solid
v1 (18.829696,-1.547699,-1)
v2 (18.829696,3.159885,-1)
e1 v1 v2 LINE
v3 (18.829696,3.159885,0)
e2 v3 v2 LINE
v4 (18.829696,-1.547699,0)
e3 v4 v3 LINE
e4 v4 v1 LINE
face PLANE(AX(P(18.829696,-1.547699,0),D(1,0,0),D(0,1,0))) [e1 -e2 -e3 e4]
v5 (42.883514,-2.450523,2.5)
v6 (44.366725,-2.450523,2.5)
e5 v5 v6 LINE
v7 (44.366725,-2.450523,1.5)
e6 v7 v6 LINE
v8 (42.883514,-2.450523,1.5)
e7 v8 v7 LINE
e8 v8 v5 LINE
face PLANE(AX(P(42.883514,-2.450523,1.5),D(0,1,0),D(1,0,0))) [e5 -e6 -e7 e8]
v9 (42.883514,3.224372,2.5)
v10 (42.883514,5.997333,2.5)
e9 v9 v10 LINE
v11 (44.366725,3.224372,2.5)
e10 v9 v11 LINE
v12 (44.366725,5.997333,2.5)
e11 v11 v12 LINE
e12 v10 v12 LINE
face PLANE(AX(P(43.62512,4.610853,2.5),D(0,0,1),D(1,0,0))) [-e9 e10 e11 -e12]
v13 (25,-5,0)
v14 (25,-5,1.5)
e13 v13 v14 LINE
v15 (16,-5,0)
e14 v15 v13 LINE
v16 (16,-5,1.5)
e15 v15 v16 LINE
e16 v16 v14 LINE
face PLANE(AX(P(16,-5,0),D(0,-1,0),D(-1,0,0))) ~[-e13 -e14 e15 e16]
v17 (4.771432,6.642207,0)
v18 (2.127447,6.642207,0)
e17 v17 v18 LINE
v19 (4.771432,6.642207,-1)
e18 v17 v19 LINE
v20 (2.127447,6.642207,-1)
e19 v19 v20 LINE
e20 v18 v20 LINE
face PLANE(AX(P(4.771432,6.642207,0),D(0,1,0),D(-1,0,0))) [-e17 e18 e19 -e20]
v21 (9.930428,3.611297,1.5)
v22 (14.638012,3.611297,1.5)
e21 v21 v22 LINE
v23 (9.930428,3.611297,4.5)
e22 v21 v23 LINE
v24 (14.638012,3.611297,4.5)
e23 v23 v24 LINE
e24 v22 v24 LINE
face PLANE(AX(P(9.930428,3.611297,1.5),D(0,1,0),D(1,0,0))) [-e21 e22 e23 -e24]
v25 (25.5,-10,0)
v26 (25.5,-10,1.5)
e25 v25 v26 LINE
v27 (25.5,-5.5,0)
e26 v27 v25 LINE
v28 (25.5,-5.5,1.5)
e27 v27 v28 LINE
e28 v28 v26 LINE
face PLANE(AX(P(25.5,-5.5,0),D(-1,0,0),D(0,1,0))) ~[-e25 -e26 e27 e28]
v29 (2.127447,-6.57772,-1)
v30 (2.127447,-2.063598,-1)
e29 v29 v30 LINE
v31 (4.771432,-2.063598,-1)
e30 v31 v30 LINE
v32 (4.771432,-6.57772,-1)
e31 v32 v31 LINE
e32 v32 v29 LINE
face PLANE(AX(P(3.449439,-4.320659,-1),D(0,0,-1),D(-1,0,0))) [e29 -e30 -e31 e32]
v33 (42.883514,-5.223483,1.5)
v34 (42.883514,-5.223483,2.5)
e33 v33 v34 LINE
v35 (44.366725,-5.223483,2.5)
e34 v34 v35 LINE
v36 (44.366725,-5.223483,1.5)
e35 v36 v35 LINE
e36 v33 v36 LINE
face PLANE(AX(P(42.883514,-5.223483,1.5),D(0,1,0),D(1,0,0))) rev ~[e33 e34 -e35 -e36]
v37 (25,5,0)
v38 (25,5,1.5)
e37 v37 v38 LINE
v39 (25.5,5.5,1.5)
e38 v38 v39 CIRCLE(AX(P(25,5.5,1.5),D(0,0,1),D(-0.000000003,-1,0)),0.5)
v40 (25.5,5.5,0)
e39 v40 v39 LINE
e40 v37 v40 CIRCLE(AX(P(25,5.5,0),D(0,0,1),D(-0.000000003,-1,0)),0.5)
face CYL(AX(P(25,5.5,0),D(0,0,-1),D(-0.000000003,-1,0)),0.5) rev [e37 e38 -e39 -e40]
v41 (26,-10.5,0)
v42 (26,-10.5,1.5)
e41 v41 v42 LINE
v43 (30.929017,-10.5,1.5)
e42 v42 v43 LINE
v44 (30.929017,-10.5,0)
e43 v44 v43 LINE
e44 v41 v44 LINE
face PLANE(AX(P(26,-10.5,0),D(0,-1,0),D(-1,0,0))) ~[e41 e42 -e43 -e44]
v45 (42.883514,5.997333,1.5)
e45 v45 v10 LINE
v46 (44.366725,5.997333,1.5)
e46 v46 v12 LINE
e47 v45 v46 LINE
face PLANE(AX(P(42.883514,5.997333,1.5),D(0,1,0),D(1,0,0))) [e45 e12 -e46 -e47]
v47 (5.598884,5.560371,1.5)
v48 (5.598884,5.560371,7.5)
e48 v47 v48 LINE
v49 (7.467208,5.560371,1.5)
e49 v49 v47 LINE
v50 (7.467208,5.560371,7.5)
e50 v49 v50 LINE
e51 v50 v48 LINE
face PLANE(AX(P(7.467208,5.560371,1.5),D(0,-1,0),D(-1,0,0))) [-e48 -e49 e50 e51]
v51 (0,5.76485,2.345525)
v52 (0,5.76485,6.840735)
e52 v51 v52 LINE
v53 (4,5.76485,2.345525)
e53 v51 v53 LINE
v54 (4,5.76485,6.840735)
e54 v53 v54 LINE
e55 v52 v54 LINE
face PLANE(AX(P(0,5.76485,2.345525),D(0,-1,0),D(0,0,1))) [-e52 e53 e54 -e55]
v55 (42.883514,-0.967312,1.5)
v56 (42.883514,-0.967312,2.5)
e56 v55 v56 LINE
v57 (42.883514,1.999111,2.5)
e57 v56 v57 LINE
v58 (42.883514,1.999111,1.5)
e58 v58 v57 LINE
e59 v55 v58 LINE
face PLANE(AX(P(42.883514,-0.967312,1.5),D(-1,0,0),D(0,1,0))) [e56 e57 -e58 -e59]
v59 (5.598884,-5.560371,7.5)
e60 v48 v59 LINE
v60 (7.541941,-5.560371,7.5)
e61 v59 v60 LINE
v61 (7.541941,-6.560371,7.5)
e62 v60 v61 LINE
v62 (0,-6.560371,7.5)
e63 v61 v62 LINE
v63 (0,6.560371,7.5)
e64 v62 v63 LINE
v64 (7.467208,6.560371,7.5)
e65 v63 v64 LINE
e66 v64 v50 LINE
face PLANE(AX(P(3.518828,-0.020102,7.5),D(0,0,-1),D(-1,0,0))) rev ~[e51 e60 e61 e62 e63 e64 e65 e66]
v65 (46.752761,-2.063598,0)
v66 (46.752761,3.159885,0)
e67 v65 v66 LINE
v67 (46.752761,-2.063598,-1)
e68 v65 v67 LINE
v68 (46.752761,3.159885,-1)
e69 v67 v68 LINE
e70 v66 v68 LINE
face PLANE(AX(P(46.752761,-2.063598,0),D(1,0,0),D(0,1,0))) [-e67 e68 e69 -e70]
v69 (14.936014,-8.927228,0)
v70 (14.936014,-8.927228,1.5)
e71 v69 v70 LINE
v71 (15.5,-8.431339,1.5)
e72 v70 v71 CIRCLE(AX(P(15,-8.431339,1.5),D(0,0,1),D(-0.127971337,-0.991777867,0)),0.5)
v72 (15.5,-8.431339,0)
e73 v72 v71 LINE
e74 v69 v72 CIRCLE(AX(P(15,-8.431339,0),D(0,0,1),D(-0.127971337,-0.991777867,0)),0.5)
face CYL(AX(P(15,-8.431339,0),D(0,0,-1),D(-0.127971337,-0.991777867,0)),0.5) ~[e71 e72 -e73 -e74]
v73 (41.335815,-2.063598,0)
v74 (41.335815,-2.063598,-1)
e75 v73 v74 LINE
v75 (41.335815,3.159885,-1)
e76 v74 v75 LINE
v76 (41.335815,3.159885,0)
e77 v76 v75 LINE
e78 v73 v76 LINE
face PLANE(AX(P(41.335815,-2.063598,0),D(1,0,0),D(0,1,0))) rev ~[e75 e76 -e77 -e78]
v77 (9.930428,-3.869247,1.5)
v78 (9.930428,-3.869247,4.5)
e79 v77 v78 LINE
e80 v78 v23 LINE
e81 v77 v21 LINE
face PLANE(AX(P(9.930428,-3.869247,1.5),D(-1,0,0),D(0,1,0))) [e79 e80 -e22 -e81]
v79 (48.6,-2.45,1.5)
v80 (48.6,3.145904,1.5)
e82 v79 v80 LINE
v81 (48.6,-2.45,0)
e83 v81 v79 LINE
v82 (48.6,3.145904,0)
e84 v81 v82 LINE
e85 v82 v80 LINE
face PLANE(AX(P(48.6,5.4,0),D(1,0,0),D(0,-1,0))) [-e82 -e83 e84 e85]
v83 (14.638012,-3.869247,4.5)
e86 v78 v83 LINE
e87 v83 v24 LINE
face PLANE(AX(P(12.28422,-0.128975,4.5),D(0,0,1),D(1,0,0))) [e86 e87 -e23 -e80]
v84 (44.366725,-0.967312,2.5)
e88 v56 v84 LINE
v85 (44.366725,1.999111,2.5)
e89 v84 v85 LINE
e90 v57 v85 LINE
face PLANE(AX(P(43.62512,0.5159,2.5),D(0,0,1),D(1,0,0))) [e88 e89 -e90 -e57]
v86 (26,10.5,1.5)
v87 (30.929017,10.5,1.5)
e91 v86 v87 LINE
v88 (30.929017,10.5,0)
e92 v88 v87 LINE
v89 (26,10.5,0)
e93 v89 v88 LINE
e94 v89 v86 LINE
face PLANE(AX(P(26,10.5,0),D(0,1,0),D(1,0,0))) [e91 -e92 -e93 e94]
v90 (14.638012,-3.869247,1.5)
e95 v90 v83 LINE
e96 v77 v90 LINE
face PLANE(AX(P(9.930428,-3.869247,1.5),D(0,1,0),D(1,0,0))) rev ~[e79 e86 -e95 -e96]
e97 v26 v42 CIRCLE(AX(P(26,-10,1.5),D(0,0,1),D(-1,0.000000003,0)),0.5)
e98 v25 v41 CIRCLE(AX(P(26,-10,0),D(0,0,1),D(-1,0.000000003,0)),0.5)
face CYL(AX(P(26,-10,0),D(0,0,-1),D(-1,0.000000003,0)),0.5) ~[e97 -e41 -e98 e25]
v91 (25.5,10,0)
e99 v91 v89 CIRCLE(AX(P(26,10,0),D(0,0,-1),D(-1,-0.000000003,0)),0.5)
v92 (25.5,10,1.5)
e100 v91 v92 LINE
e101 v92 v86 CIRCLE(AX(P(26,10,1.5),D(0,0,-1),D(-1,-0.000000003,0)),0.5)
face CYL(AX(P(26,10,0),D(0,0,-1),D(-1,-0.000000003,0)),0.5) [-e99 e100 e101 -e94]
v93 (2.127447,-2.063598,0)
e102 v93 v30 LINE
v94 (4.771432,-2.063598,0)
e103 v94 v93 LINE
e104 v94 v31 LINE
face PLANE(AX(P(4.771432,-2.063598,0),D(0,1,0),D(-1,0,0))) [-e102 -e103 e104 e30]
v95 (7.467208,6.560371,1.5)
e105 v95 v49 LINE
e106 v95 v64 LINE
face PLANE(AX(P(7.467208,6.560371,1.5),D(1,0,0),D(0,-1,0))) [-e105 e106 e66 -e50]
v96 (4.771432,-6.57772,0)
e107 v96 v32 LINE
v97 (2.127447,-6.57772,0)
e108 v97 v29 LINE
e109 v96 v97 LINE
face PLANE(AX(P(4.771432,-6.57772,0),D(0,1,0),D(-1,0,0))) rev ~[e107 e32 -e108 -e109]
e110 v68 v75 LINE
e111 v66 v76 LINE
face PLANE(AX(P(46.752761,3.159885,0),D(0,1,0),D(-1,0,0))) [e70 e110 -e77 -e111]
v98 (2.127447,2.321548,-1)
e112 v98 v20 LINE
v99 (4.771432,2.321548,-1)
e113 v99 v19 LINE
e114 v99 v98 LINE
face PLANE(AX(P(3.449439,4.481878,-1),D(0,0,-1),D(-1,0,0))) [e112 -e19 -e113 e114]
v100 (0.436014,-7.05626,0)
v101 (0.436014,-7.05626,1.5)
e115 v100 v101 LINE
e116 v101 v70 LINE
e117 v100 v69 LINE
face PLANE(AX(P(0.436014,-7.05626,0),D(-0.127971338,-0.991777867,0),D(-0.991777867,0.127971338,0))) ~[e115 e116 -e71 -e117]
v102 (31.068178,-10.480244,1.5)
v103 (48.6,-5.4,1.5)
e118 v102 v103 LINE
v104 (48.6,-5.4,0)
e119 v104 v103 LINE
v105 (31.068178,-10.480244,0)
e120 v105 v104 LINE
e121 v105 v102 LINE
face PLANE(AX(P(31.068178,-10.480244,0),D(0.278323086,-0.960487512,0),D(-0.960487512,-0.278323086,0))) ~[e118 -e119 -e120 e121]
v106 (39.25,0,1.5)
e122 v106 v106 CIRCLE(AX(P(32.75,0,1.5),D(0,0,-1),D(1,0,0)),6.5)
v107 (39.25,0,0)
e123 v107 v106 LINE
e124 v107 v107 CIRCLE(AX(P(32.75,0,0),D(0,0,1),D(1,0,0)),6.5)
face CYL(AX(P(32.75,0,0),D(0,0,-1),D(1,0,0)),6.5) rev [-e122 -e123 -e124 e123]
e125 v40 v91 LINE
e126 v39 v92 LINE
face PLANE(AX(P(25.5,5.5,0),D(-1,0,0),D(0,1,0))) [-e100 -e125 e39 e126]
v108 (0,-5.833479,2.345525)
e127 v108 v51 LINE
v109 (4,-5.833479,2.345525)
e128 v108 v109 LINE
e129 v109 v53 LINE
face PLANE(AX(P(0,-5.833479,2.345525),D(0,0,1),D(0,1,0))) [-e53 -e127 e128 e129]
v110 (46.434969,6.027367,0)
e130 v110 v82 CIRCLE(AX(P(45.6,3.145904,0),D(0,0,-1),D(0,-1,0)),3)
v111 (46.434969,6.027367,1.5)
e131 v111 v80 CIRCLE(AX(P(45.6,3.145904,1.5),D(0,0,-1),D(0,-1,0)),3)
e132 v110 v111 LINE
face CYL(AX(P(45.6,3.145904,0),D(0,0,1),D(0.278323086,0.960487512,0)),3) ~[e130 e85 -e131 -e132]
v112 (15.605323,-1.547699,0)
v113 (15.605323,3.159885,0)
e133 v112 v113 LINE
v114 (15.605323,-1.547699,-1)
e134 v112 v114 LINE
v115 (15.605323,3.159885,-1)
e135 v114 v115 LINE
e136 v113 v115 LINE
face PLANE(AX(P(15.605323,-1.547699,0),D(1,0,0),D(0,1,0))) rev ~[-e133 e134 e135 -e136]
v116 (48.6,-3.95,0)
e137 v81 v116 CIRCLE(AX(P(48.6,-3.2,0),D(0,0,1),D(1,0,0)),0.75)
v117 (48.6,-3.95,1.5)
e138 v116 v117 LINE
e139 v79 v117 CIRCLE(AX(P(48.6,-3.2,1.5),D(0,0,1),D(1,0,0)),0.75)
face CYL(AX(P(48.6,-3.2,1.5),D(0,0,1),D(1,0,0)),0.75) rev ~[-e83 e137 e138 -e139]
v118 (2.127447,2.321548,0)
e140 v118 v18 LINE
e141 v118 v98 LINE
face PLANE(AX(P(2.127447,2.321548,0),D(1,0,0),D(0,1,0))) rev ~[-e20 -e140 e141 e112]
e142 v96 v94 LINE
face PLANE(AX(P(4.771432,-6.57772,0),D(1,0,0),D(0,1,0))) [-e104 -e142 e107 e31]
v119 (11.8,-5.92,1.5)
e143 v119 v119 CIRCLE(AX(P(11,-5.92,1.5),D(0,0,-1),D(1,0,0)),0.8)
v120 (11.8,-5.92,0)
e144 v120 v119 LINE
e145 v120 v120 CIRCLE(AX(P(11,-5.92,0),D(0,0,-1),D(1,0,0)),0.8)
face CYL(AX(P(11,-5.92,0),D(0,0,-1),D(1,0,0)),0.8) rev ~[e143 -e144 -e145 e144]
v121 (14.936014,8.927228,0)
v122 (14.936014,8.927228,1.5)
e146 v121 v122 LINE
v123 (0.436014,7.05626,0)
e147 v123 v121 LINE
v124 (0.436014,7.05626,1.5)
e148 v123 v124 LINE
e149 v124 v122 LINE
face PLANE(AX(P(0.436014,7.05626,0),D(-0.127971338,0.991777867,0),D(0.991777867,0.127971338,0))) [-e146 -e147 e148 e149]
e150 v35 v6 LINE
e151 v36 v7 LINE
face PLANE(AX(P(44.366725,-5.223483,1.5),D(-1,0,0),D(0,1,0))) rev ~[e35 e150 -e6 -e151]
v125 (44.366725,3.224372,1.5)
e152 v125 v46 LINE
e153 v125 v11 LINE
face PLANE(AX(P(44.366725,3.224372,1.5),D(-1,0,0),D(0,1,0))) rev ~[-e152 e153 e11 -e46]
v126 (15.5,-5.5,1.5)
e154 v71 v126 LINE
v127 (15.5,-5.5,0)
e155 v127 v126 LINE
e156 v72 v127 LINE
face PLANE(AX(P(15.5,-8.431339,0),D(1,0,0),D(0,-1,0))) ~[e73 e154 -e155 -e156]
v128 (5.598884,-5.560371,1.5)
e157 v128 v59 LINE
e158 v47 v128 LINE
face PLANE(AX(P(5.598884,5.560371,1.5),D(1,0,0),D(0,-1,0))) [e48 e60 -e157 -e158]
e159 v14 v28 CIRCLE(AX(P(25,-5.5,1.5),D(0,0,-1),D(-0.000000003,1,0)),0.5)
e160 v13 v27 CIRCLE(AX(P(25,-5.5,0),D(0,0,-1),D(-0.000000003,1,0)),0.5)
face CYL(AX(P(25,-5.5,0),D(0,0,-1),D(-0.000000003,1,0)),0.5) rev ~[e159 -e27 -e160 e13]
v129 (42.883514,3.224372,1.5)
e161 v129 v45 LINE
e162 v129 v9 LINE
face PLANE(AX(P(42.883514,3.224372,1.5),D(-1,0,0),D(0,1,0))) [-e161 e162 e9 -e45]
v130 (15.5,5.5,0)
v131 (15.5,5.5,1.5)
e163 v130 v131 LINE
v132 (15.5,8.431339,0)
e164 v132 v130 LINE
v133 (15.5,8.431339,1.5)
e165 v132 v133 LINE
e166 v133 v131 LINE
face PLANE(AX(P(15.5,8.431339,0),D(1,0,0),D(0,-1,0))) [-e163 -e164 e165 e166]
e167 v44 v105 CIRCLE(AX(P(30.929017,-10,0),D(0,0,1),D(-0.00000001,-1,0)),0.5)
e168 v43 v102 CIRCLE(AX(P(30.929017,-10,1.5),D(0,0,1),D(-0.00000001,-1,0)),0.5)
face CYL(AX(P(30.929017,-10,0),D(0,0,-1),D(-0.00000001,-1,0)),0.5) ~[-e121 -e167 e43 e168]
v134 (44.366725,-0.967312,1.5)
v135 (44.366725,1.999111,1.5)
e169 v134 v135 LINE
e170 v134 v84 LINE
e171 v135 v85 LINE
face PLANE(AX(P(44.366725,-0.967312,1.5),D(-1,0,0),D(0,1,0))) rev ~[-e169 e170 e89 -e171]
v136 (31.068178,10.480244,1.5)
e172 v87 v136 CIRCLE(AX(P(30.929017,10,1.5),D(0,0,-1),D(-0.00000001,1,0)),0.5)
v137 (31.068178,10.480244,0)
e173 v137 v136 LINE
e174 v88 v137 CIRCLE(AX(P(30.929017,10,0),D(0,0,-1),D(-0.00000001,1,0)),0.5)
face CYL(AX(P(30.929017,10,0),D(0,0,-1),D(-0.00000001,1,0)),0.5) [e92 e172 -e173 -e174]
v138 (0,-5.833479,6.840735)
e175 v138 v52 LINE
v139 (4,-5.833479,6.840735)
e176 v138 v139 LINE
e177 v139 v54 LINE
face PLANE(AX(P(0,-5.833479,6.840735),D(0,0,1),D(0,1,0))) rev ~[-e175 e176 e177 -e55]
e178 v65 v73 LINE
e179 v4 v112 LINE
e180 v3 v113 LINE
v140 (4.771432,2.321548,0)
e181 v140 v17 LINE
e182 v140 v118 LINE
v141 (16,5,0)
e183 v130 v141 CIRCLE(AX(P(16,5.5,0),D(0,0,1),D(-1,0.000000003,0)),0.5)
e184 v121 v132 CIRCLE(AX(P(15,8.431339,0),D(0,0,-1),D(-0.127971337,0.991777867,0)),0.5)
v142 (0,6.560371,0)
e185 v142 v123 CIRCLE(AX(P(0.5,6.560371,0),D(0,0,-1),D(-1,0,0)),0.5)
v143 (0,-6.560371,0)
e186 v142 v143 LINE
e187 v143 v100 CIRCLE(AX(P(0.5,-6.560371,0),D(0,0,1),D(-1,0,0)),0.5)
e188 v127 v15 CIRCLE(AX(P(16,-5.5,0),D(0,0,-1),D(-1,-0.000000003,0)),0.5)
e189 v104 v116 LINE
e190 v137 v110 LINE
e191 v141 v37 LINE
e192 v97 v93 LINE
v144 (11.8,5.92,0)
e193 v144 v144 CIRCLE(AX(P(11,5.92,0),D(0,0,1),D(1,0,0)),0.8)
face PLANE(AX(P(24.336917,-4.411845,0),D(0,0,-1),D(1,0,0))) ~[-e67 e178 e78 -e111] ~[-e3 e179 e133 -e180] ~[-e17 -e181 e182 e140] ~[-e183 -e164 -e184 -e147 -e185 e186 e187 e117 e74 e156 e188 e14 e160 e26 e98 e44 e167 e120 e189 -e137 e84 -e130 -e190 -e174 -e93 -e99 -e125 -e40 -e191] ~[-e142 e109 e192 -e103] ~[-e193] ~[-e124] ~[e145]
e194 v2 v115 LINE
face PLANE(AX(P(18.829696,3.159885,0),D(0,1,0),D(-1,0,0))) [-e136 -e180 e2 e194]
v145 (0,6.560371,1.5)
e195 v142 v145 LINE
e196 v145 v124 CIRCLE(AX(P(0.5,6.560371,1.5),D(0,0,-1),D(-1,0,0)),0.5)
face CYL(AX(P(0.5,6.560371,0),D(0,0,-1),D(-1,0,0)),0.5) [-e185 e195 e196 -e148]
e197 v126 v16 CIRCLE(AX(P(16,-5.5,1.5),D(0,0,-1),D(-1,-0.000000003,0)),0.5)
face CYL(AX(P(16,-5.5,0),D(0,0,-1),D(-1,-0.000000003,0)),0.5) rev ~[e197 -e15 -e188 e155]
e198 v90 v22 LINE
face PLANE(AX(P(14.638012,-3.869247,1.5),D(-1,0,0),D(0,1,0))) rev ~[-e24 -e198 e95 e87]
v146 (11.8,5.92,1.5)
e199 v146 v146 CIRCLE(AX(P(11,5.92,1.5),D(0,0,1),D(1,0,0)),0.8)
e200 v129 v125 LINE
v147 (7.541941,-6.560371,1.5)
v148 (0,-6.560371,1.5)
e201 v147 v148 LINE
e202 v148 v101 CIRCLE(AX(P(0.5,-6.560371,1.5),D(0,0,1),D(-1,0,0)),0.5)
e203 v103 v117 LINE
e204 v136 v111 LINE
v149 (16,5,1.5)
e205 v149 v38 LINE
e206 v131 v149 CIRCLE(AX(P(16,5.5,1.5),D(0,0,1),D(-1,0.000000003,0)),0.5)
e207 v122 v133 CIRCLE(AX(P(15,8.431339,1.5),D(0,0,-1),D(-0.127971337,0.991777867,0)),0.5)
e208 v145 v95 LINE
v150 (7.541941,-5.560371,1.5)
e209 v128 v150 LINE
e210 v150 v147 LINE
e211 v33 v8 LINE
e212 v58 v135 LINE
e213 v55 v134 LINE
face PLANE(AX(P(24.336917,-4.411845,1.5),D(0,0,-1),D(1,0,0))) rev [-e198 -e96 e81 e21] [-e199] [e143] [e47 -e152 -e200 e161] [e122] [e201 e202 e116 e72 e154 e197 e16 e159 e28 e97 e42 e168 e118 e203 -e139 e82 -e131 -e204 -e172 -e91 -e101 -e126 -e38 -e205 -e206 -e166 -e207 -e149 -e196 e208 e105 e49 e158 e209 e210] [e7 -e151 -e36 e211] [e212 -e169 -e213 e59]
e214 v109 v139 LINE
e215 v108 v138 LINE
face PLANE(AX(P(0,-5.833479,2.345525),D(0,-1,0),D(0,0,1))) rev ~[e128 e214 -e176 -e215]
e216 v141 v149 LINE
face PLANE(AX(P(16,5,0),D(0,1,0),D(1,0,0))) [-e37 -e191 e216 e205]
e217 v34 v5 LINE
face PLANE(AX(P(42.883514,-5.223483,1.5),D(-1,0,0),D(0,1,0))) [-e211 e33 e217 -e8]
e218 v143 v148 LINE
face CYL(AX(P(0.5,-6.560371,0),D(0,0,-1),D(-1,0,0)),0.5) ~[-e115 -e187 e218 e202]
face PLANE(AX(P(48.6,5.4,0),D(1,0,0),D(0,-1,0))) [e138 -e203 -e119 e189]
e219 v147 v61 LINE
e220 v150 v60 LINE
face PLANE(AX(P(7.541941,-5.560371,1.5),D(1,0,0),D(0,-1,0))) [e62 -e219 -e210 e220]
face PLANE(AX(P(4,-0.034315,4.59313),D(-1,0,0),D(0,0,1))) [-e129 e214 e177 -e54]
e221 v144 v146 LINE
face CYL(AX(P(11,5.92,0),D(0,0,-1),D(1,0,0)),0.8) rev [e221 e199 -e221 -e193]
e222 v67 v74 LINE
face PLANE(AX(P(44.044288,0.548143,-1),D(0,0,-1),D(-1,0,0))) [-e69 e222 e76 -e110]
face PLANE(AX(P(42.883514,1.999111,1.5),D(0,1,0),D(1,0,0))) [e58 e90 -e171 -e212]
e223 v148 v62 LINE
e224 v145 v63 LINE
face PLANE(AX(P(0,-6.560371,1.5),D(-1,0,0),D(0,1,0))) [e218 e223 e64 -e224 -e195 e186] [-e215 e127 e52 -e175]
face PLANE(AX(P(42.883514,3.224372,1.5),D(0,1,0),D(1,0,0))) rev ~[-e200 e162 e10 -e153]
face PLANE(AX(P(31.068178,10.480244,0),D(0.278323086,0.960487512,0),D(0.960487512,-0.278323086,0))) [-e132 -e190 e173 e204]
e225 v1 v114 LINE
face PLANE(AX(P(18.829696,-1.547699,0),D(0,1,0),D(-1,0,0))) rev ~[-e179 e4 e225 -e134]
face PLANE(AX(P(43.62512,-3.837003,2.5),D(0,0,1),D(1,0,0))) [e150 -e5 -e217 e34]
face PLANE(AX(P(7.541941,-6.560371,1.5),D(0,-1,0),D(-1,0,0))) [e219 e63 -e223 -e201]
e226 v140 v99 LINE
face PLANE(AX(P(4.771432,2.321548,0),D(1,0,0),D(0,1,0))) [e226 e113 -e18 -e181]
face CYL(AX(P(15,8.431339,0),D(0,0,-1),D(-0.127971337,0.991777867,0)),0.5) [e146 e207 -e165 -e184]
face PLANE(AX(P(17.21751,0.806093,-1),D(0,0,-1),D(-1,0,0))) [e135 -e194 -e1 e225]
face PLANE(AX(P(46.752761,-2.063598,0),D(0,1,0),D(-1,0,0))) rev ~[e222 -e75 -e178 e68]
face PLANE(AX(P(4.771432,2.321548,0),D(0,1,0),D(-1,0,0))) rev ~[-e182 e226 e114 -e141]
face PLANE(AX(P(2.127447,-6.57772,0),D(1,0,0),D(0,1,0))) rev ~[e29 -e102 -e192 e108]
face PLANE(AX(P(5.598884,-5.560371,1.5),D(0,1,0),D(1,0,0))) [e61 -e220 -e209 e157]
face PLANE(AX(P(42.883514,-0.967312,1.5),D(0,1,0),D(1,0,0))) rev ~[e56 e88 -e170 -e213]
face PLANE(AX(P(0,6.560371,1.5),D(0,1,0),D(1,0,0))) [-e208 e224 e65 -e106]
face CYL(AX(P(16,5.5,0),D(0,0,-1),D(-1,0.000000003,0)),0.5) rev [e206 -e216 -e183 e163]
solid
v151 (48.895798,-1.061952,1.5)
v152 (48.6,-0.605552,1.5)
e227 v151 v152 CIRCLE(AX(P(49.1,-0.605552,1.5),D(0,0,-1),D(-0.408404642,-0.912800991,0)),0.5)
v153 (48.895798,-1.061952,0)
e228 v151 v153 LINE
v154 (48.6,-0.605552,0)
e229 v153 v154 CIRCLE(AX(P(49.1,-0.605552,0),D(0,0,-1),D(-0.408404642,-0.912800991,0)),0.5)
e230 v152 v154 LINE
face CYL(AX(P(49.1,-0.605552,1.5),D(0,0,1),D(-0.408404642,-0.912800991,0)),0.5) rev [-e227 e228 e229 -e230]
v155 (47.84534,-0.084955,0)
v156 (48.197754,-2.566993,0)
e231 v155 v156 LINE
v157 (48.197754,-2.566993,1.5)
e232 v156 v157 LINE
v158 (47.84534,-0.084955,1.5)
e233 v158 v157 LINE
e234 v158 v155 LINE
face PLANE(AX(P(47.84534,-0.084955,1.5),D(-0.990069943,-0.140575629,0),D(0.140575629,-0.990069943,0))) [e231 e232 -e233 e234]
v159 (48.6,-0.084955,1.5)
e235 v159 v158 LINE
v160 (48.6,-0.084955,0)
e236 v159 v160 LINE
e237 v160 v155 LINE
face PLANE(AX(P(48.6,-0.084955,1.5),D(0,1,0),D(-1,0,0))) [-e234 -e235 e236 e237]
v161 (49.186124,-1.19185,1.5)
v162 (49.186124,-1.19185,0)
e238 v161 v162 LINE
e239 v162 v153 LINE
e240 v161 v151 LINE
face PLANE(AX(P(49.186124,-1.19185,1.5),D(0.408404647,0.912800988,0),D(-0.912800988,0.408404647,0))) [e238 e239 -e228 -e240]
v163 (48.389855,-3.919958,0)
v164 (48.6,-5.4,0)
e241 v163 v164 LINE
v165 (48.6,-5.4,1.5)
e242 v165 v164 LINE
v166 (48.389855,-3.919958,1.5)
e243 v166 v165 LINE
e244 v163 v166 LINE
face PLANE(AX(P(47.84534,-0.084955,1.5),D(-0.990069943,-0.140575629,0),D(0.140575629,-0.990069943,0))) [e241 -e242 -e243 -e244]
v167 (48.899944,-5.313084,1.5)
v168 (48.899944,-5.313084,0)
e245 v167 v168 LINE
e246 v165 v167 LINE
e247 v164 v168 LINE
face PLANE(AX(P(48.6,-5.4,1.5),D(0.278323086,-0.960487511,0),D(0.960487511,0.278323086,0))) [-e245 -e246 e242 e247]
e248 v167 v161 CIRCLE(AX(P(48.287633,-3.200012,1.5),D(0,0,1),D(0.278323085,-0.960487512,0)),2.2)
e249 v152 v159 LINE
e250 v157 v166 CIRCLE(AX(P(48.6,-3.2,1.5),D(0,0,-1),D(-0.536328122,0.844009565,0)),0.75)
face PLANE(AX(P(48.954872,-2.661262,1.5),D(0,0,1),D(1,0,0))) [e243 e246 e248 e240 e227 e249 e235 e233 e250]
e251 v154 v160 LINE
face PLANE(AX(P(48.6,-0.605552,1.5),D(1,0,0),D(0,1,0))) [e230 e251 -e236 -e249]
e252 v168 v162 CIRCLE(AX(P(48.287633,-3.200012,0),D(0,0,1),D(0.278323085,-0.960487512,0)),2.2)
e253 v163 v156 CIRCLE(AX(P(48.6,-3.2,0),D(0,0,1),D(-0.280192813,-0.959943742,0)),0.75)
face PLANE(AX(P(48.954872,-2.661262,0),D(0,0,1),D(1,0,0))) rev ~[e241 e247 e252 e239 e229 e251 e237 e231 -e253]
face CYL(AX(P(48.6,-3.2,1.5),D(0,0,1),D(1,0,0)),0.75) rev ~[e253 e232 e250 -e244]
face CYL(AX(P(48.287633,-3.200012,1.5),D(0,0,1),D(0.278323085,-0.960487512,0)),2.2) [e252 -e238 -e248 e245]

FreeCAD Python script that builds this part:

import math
import FreeCAD as App
import Part
import Sketcher
Q = App.Units.Quantity


def edges_at(feature, points):
    """Names of the edges that pass closest to the given points."""
    edges = feature.Shape.Edges
    near = lambda p: min(range(len(edges)), key=lambda i: edges[i].distToShape(Part.Vertex(*p))[0])
    return sorted({f"Edge{near(p) + 1}" for p in points})

doc = App.newDocument("Part")
params = doc.addObject("Spreadsheet::Sheet", "Params")
for row, (alias, value) in enumerate([
    ("sketch1_diameter", "1.6 mm"),
    ("sketch1_radius", "6.5 mm"),
    ("sketch1_radius2", "0.5 mm"),
    ("sketch1_width", "9 mm"),
    ("sketch1_height", "5.4 mm"),
    ("pad1_length", "1.5 mm"),
    ("fillet_radius", "3 mm"),
    ("sketch2_radius", "2.2 mm"),
    ("sketch2_radius2", "0.5 mm"),
    ("pad2_length", "1.5 mm"),
    ("sketch3_diameter", "1.5 mm"),
    ("pad3_length", "2.5 mm"),
    ("sketch4_height", "1 mm"),
    ("pad4_length", "6 mm"),
    ("pad5_length", "3 mm"),
    ("pad6_length", "1 mm"),
    ("pad7_length", "1 mm"),
    ("pocket1_length", "4 mm"),
], start=1):
    params.set(f"A{row}", alias)
    params.set(f"B{row}", "=" + value)
    params.setAlias(f"B{row}", alias)

body = doc.addObject("PartDesign::Body", "Body")

# Sketch on XY plane
sketch1 = body.newObject("Sketcher::SketchObject", "Sketch")
sketch1.AttachmentSupport = (doc.getObject("XY_Plane"), [""])
sketch1.MapMode = "FlatFace"
sketch1.addGeometry(Part.LineSegment(App.Vector(0, 6.56, 0), App.Vector(0, 0, 0)), False)
sketch1.addGeometry(Part.LineSegment(App.Vector(0, 0, 0), App.Vector(26.25, 0, 0)), False)
sketch1.addGeometry(Part.ArcOfCircle(Part.Circle(App.Vector(32.75, 0, 0), App.Vector(0, 0, 1), 6.5), math.radians(0), math.radians(180)), False)
sketch1.addGeometry(Part.LineSegment(App.Vector(39.25, 0, 0), App.Vector(48.6, 0, 0)), False)
sketch1.addGeometry(Part.LineSegment(App.Vector(48.6, 0, 0), App.Vector(48.6, 5.4, 0)), False)
sketch1.addGeometry(Part.LineSegment(App.Vector(48.6, 5.4, 0), App.Vector(31.07, 10.48, 0)), False)
sketch1.addGeometry(Part.ArcOfCircle(Part.Circle(App.Vector(30.93, 10, 0), App.Vector(0, 0, 1), 0.5), math.radians(73.84), math.radians(90)), False)
sketch1.addGeometry(Part.LineSegment(App.Vector(30.93, 10.5, 0), App.Vector(26, 10.5, 0)), False)
sketch1.addGeometry(Part.ArcOfCircle(Part.Circle(App.Vector(26, 10, 0), App.Vector(0, 0, 1), 0.5), math.radians(90), math.radians(180)), False)
sketch1.addGeometry(Part.LineSegment(App.Vector(25.5, 10, 0), App.Vector(25.5, 5.5, 0)), False)
sketch1.addGeometry(Part.ArcOfCircle(Part.Circle(App.Vector(25, 5.5, 0), App.Vector(0, 0, 1), 0.5), math.radians(-90), math.radians(0)), False)
sketch1.addGeometry(Part.LineSegment(App.Vector(25, 5, 0), App.Vector(16, 5, 0)), False)
sketch1.addGeometry(Part.ArcOfCircle(Part.Circle(App.Vector(16, 5.5, 0), App.Vector(0, 0, 1), 0.5), math.radians(180), math.radians(270)), False)
sketch1.addGeometry(Part.LineSegment(App.Vector(15.5, 5.5, 0), App.Vector(15.5, 8.43, 0)), False)
sketch1.addGeometry(Part.ArcOfCircle(Part.Circle(App.Vector(15, 8.43, 0), App.Vector(0, 0, 1), 0.5), math.radians(0), math.radians(97)), False)
sketch1.addGeometry(Part.LineSegment(App.Vector(14.94, 8.93, 0), App.Vector(0.44, 7.06, 0)), False)
sketch1.addGeometry(Part.ArcOfCircle(Part.Circle(App.Vector(0.5, 6.56, 0), App.Vector(0, 0, 1), 0.5), math.radians(97), math.radians(180)), False)
sketch1.addGeometry(Part.Circle(App.Vector(11, 5.92, 0), App.Vector(0, 0, 1), 0.8), False)
sketch1.addConstraint(Sketcher.Constraint("Coincident", 0, 2, 1, 1))
sketch1.addConstraint(Sketcher.Constraint("Coincident", 1, 2, 2, 2))
sketch1.addConstraint(Sketcher.Constraint("Coincident", 2, 1, 3, 1))
sketch1.addConstraint(Sketcher.Constraint("Coincident", 3, 2, 4, 1))
sketch1.addConstraint(Sketcher.Constraint("Coincident", 4, 2, 5, 1))
sketch1.addConstraint(Sketcher.Constraint("Tangent", 5, 2, 6, 1))
sketch1.addConstraint(Sketcher.Constraint("Tangent", 6, 2, 7, 1))
sketch1.addConstraint(Sketcher.Constraint("Tangent", 7, 2, 8, 1))
sketch1.addConstraint(Sketcher.Constraint("Tangent", 8, 2, 9, 1))
sketch1.addConstraint(Sketcher.Constraint("Tangent", 9, 2, 10, 2))
sketch1.addConstraint(Sketcher.Constraint("Tangent", 10, 1, 11, 1))
sketch1.addConstraint(Sketcher.Constraint("Tangent", 11, 2, 12, 2))
sketch1.addConstraint(Sketcher.Constraint("Tangent", 12, 1, 13, 1))
sketch1.addConstraint(Sketcher.Constraint("Tangent", 13, 2, 14, 1))
sketch1.addConstraint(Sketcher.Constraint("Tangent", 14, 2, 15, 1))
sketch1.addConstraint(Sketcher.Constraint("Tangent", 15, 2, 16, 1))
sketch1.addConstraint(Sketcher.Constraint("Tangent", 16, 2, 0, 1))
sketch1.addConstraint(Sketcher.Constraint("Vertical", 0))
sketch1.addConstraint(Sketcher.Constraint("Horizontal", 1))
sketch1.addConstraint(Sketcher.Constraint("Horizontal", 3))
sketch1.addConstraint(Sketcher.Constraint("Vertical", 4))
sketch1.addConstraint(Sketcher.Constraint("Horizontal", 7))
sketch1.addConstraint(Sketcher.Constraint("Vertical", 9))
sketch1.addConstraint(Sketcher.Constraint("Horizontal", 11))
sketch1.addConstraint(Sketcher.Constraint("Vertical", 13))
sketch1.addConstraint(Sketcher.Constraint("Coincident", 0, 2, -1, 1))
sketch1.addConstraint(Sketcher.Constraint("Equal", 6, 8))
sketch1.addConstraint(Sketcher.Constraint("Equal", 8, 10))
sketch1.addConstraint(Sketcher.Constraint("Equal", 10, 12))
sketch1.addConstraint(Sketcher.Constraint("Equal", 12, 14))
sketch1.addConstraint(Sketcher.Constraint("Equal", 14, 16))
sketch1.addConstraint(Sketcher.Constraint("PointOnObject", 2, 3, -1))
sketch1.addConstraint(Sketcher.Constraint("PointOnObject", 2, 1, -1))
sketch1.addConstraint(Sketcher.Constraint("Diameter", 17, Q("1.6 mm")))
sketch1.addConstraint(Sketcher.Constraint("Radius", 2, Q("6.5 mm")))
sketch1.addConstraint(Sketcher.Constraint("Radius", 6, Q("0.5 mm")))
sketch1.addConstraint(Sketcher.Constraint("DistanceX", 11, 2, 11, 1, Q("9 mm")))
sketch1.addConstraint(Sketcher.Constraint("DistanceY", 4, 1, 4, 2, Q("5.4 mm")))
sketch1.addConstraint(Sketcher.Constraint("DistanceY", 9, 2, 9, 1, Q("4.5 mm")))
sketch1.addConstraint(Sketcher.Constraint("DistanceY", -1, 1, 6, 3, Q("10 mm")))
sketch1.addConstraint(Sketcher.Constraint("DistanceX", -1, 1, 8, 3, Q("26 mm")))
sketch1.addConstraint(Sketcher.Constraint("DistanceX", -1, 1, 17, 3, Q("11 mm")))
sketch1.addConstraint(Sketcher.Constraint("DistanceX", 1, 1, 1, 2, Q("26.25 mm")))
sketch1.addConstraint(Sketcher.Constraint("DistanceX", 3, 1, 3, 2, Q("9.35 mm")))
sketch1.addConstraint(Sketcher.Constraint("DistanceY", -1, 1, 17, 3, Q("5.92 mm")))
sketch1.addConstraint(Sketcher.Constraint("DistanceY", 0, 2, 0, 1, Q("6.560371 mm")))
sketch1.addConstraint(Sketcher.Constraint("DistanceY", 13, 1, 13, 2, Q("2.931339 mm")))
sketch1.addConstraint(Sketcher.Constraint("DistanceX", 7, 2, 7, 1, Q("4.929017 mm")))
sketch1.setExpression("Constraints[33]", "Params.sketch1_diameter")
sketch1.setExpression("Constraints[34]", "Params.sketch1_radius")
sketch1.setExpression("Constraints[35]", "Params.sketch1_radius2")
sketch1.setExpression("Constraints[36]", "Params.sketch1_width")
sketch1.setExpression("Constraints[37]", "Params.sketch1_height")
pad1 = body.newObject("PartDesign::Pad", "Pad")
pad1.Profile = sketch1
pad1.setExpression("Length", "Params.pad1_length")
body2 = doc.addObject("PartDesign::Body", "Body001")
doc.recompute()

body2.BaseFeature = body
doc.recompute()

mirroring = doc.addObject("Part::Mirroring", "Mirroring")
mirroring.Source = body
mirroring.Base = App.Vector(0, 0, 0)
mirroring.Normal = App.Vector(0, 1, 0)
body3 = doc.addObject("PartDesign::Body", "Body002")
body3.BaseFeature = mirroring
boolean = body2.newObject("PartDesign::Boolean", "Boolean")
boolean.Type = "Fuse"
boolean.addObjects([body3])
doc.recompute()

fillet = body2.newObject("PartDesign::Fillet", "Fillet")
fillet.Base = (boolean, edges_at(boolean, [(48.6, 5.4, 0.75)]))
fillet.setExpression("Radius", "Params.fillet_radius")
body4 = doc.addObject("PartDesign::Body", "Body003")

# Sketch on XY plane
sketch2 = body4.newObject("Sketcher::SketchObject", "Sketch001")
sketch2.AttachmentSupport = (doc.getObject("XY_Plane003"), [""])
sketch2.MapMode = "FlatFace"
sketch2.AttachmentOffset = App.Placement(App.Vector(0, 0, 1.5), App.Rotation())
sketch2.addGeometry(Part.LineSegment(App.Vector(48.6, -5.4, 0), App.Vector(48.9, -5.31, 0)), False)
sketch2.addGeometry(Part.ArcOfCircle(Part.Circle(App.Vector(48.29, -3.2, 0), App.Vector(0, 0, 1), 2.2), math.radians(-74), math.radians(66)), False)
sketch2.addGeometry(Part.LineSegment(App.Vector(49.19, -1.19, 0), App.Vector(48.9, -1.06, 0)), False)
sketch2.addGeometry(Part.ArcOfCircle(Part.Circle(App.Vector(49.1, -0.61, 0), App.Vector(0, 0, 1), 0.5), math.radians(180), math.radians(246)), False)
sketch2.addGeometry(Part.LineSegment(App.Vector(48.6, -0.61, 0), App.Vector(48.6, -0.08, 0)), False)
sketch2.addGeometry(Part.LineSegment(App.Vector(48.6, -0.08, 0), App.Vector(47.85, -0.08, 0)), False)
sketch2.addGeometry(Part.LineSegment(App.Vector(47.85, -0.08, 0), App.Vector(48.6, -5.4, 0)), False)
sketch2.addConstraint(Sketcher.Constraint("Tangent", 0, 2, 1, 1))
sketch2.addConstraint(Sketcher.Constraint("Tangent", 1, 2, 2, 1))
sketch2.addConstraint(Sketcher.Constraint("Tangent", 2, 2, 3, 2))
sketch2.addConstraint(Sketcher.Constraint("Tangent", 3, 1, 4, 1))
sketch2.addConstraint(Sketcher.Constraint("Coincident", 4, 2, 5, 1))
sketch2.addConstraint(Sketcher.Constraint("Coincident", 5, 2, 6, 1))
sketch2.addConstraint(Sketcher.Constraint("Coincident", 6, 2, 0, 1))
sketch2.addConstraint(Sketcher.Constraint("Vertical", 4))
sketch2.addConstraint(Sketcher.Constraint("Horizontal", 5))
sketch2.addConstraint(Sketcher.Constraint("Vertical", 4, 2, 6, 2))
sketch2.addConstraint(Sketcher.Constraint("Radius", 1, Q("2.2 mm")))
sketch2.addConstraint(Sketcher.Constraint("Radius", 3, Q("0.5 mm")))
sketch2.addConstraint(Sketcher.Constraint("DistanceX", -1, 1, 3, 3, Q("49.1 mm")))
sketch2.addConstraint(Sketcher.Constraint("DistanceY", 6, 2, -1, 1, Q("5.4 mm")))
sketch2.addConstraint(Sketcher.Constraint("DistanceX", 5, 2, 5, 1, Q("0.75466 mm")))
sketch2.addConstraint(Sketcher.Constraint("DistanceY", 2, 2, 3, 3, Q("0.4564 mm")))
sketch2.addConstraint(Sketcher.Constraint("Distance", 2, Q("0.318061 mm")))
sketch2.addConstraint(Sketcher.Constraint("DistanceY", 4, 1, 4, 2, Q("0.520597 mm")))
sketch2.addConstraint(Sketcher.Constraint("DistanceY", 1, 3, -1, 1, Q("3.200012 mm")))
sketch2.setExpression("Constraints[10]", "Params.sketch2_radius")
sketch2.setExpression("Constraints[11]", "Params.sketch2_radius2")
pad2 = body4.newObject("PartDesign::Pad", "Pad001")
pad2.Profile = sketch2
pad2.setExpression("Length", "Params.pad2_length")
pad2.Reversed = True
body5 = doc.addObject("PartDesign::Body", "Body004")

# Sketch on XY plane
sketch3 = body5.newObject("Sketcher::SketchObject", "Sketch002")
sketch3.AttachmentSupport = (doc.getObject("XY_Plane004"), [""])
sketch3.MapMode = "FlatFace"
sketch3.AttachmentOffset = App.Placement(App.Vector(0, 0, 1.5), App.Rotation())
sketch3.addGeometry(Part.Circle(App.Vector(48.6, -3.2, 0), App.Vector(0, 0, 1), 0.8), False)
sketch3.addConstraint(Sketcher.Constraint("Diameter", 0, Q("1.5 mm")))
sketch3.addConstraint(Sketcher.Constraint("DistanceX", -1, 1, 0, 3, Q("48.6 mm")))
sketch3.addConstraint(Sketcher.Constraint("DistanceY", 0, 3, -1, 1, Q("3.2 mm")))
sketch3.setExpression("Constraints[0]", "Params.sketch3_diameter")
pad3 = body5.newObject("PartDesign::Pad", "Pad002")
pad3.Profile = sketch3
pad3.setExpression("Length", "Params.pad3_length")
pad3.Reversed = True
doc.recompute()

body6 = doc.addObject("PartDesign::Body", "Body005")
body6.BaseFeature = body5
boolean2 = body2.newObject("PartDesign::Boolean", "Boolean001")
boolean2.Type = "Cut"
boolean2.addObjects([body6])
doc.recompute()

# Sketch on XY plane
sketch4 = body2.newObject("Sketcher::SketchObject", "Sketch003")
sketch4.AttachmentSupport = (doc.getObject("XY_Plane001"), [""])
sketch4.MapMode = "FlatFace"
sketch4.AttachmentOffset = App.Placement(App.Vector(0, 0, 1.5), App.Rotation())
sketch4.addGeometry(Part.LineSegment(App.Vector(7.5, 6.6, 0), App.Vector(0, 6.6, 0)), False)
sketch4.addGeometry(Part.LineSegment(App.Vector(0, 6.6, 0), App.Vector(0, -6.6, 0)), False)
sketch4.addGeometry(Part.LineSegment(App.Vector(0, -6.6, 0), App.Vector(7.5, -6.6, 0)), False)
sketch4.addGeometry(Part.LineSegment(App.Vector(7.5, -6.6, 0), App.Vector(7.5, -5.6, 0)), False)
sketch4.addGeometry(Part.LineSegment(App.Vector(7.5, -5.6, 0), App.Vector(5.6, -5.6, 0)), False)
sketch4.addGeometry(Part.LineSegment(App.Vector(5.6, -5.6, 0), App.Vector(5.6, 5.6, 0)), False)
sketch4.addGeometry(Part.LineSegment(App.Vector(5.6, 5.6, 0), App.Vector(7.5, 5.6, 0)), False)
sketch4.addGeometry(Part.LineSegment(App.Vector(7.5, 5.6, 0), App.Vector(7.5, 6.6, 0)), False)
sketch4.addConstraint(Sketcher.Constraint("Coincident", 0, 2, 1, 1))
sketch4.addConstraint(Sketcher.Constraint("Coincident", 1, 2, 2, 1))
sketch4.addConstraint(Sketcher.Constraint("Coincident", 2, 2, 3, 1))
sketch4.addConstraint(Sketcher.Constraint("Coincident", 3, 2, 4, 1))
sketch4.addConstraint(Sketcher.Constraint("Coincident", 4, 2, 5, 1))
sketch4.addConstraint(Sketcher.Constraint("Coincident", 5, 2, 6, 1))
sketch4.addConstraint(Sketcher.Constraint("Coincident", 6, 2, 7, 1))
sketch4.addConstraint(Sketcher.Constraint("Coincident", 7, 2, 0, 1))
sketch4.addConstraint(Sketcher.Constraint("Horizontal", 0))
sketch4.addConstraint(Sketcher.Constraint("Vertical", 1))
sketch4.addConstraint(Sketcher.Constraint("Horizontal", 2))
sketch4.addConstraint(Sketcher.Constraint("Vertical", 3))
sketch4.addConstraint(Sketcher.Constraint("Horizontal", 4))
sketch4.addConstraint(Sketcher.Constraint("Vertical", 5))
sketch4.addConstraint(Sketcher.Constraint("Horizontal", 6))
sketch4.addConstraint(Sketcher.Constraint("Vertical", 7))
sketch4.addConstraint(Sketcher.Constraint("Symmetric", 0, 2, 1, 2, -1, 1))
sketch4.addConstraint(Sketcher.Constraint("Equal", 3, 7))
sketch4.addConstraint(Sketcher.Constraint("DistanceY", 3, 1, 3, 2, Q("1 mm")))
sketch4.addConstraint(Sketcher.Constraint("DistanceX", 2, 1, 2, 2, Q("7.541941 mm")))
sketch4.addConstraint(Sketcher.Constraint("DistanceY", 1, 2, 1, 1, Q("13.120742 mm")))
sketch4.addConstraint(Sketcher.Constraint("DistanceX", 0, 2, 0, 1, Q("7.467208 mm")))
sketch4.addConstraint(Sketcher.Constraint("DistanceX", 4, 2, 4, 1, Q("1.943056 mm")))
sketch4.setExpression("Constraints[18]", "Params.sketch4_height")
pad4 = body2.newObject("PartDesign::Pad", "Pad003")
pad4.Profile = sketch4
pad4.setExpression("Length", "Params.pad4_length")

# Sketch on XY plane
sketch5 = body2.newObject("Sketcher::SketchObject", "Sketch004")
sketch5.AttachmentSupport = (doc.getObject("XY_Plane001"), [""])
sketch5.MapMode = "FlatFace"
sketch5.AttachmentOffset = App.Placement(App.Vector(0, 0, 1.5), App.Rotation())
sketch5.addGeometry(Part.LineSegment(App.Vector(9.9, 3.6, 0), App.Vector(9.9, -3.9, 0)), False)
sketch5.addGeometry(Part.LineSegment(App.Vector(9.9, -3.9, 0), App.Vector(14.6, -3.9, 0)), False)
sketch5.addGeometry(Part.LineSegment(App.Vector(14.6, -3.9, 0), App.Vector(14.6, 3.6, 0)), False)
sketch5.addGeometry(Part.LineSegment(App.Vector(14.6, 3.6, 0), App.Vector(9.9, 3.6, 0)), False)
sketch5.addConstraint(Sketcher.Constraint("Coincident", 0, 2, 1, 1))
sketch5.addConstraint(Sketcher.Constraint("Coincident", 1, 2, 2, 1))
sketch5.addConstraint(Sketcher.Constraint("Coincident", 2, 2, 3, 1))
sketch5.addConstraint(Sketcher.Constraint("Coincident", 3, 2, 0, 1))
sketch5.addConstraint(Sketcher.Constraint("Vertical", 0))
sketch5.addConstraint(Sketcher.Constraint("Horizontal", 1))
sketch5.addConstraint(Sketcher.Constraint("Vertical", 2))
sketch5.addConstraint(Sketcher.Constraint("Horizontal", 3))
sketch5.addConstraint(Sketcher.Constraint("DistanceX", 1, 1, 1, 2, Q("4.707584 mm")))
sketch5.addConstraint(Sketcher.Constraint("DistanceY", 0, 2, 0, 1, Q("7.480544 mm")))
sketch5.addConstraint(Sketcher.Constraint("DistanceX", -1, 1, 1, 2, Q("14.638012 mm")))
sketch5.addConstraint(Sketcher.Constraint("DistanceY", 0, 2, -1, 1, Q("3.869247 mm")))
pad5 = body2.newObject("PartDesign::Pad", "Pad004")
pad5.Profile = sketch5
pad5.setExpression("Length", "Params.pad5_length")

# Sketch on XY plane
sketch6 = body2.newObject("Sketcher::SketchObject", "Sketch005")
sketch6.AttachmentSupport = (doc.getObject("XY_Plane001"), [""])
sketch6.MapMode = "FlatFace"
sketch6.AttachmentOffset = App.Placement(App.Vector(0, 0, 1.5), App.Rotation())
sketch6.addGeometry(Part.LineSegment(App.Vector(42.9, 6, 0), App.Vector(42.9, 3.2, 0)), False)
sketch6.addGeometry(Part.LineSegment(App.Vector(42.9, 3.2, 0), App.Vector(44.4, 3.2, 0)), False)
sketch6.addGeometry(Part.LineSegment(App.Vector(44.4, 3.2, 0), App.Vector(44.4, 6, 0)), False)
sketch6.addGeometry(Part.LineSegment(App.Vector(44.4, 6, 0), App.Vector(42.9, 6, 0)), False)
sketch6.addGeometry(Part.LineSegment(App.Vector(42.9, 2, 0), App.Vector(42.9, -1, 0)), False)
sketch6.addGeometry(Part.LineSegment(App.Vector(42.9, -1, 0), App.Vector(44.4, -1, 0)), False)
sketch6.addGeometry(Part.LineSegment(App.Vector(44.4, -1, 0), App.Vector(44.4, 2, 0)), False)
sketch6.addGeometry(Part.LineSegment(App.Vector(44.4, 2, 0), App.Vector(42.9, 2, 0)), False)
sketch6.addGeometry(Part.LineSegment(App.Vector(42.9, -2.5, 0), App.Vector(42.9, -5.2, 0)), False)
sketch6.addGeometry(Part.LineSegment(App.Vector(42.9, -5.2, 0), App.Vector(44.4, -5.2, 0)), False)
sketch6.addGeometry(Part.LineSegment(App.Vector(44.4, -5.2, 0), App.Vector(44.4, -2.5, 0)), False)
sketch6.addGeometry(Part.LineSegment(App.Vector(44.4, -2.5, 0), App.Vector(42.9, -2.5, 0)), False)
sketch6.addConstraint(Sketcher.Constraint("Coincident", 0, 2, 1, 1))
sketch6.addConstraint(Sketcher.Constraint("Coincident", 1, 2, 2, 1))
sketch6.addConstraint(Sketcher.Constraint("Coincident", 2, 2, 3, 1))
sketch6.addConstraint(Sketcher.Constraint("Coincident", 3, 2, 0, 1))
sketch6.addConstraint(Sketcher.Constraint("Coincident", 4, 2, 5, 1))
sketch6.addConstraint(Sketcher.Constraint("Coincident", 5, 2, 6, 1))
sketch6.addConstraint(Sketcher.Constraint("Coincident", 6, 2, 7, 1))
sketch6.addConstraint(Sketcher.Constraint("Coincident", 7, 2, 4, 1))
sketch6.addConstraint(Sketcher.Constraint("Coincident", 8, 2, 9, 1))
sketch6.addConstraint(Sketcher.Constraint("Coincident", 9, 2, 10, 1))
sketch6.addConstraint(Sketcher.Constraint("Coincident", 10, 2, 11, 1))
sketch6.addConstraint(Sketcher.Constraint("Coincident", 11, 2, 8, 1))
sketch6.addConstraint(Sketcher.Constraint("Vertical", 0))
sketch6.addConstraint(Sketcher.Constraint("Horizontal", 1))
sketch6.addConstraint(Sketcher.Constraint("Vertical", 2))
sketch6.addConstraint(Sketcher.Constraint("Horizontal", 3))
sketch6.addConstraint(Sketcher.Constraint("Vertical", 4))
sketch6.addConstraint(Sketcher.Constraint("Horizontal", 5))
sketch6.addConstraint(Sketcher.Constraint("Vertical", 6))
sketch6.addConstraint(Sketcher.Constraint("Horizontal", 7))
sketch6.addConstraint(Sketcher.Constraint("Vertical", 8))
sketch6.addConstraint(Sketcher.Constraint("Horizontal", 9))
sketch6.addConstraint(Sketcher.Constraint("Vertical", 10))
sketch6.addConstraint(Sketcher.Constraint("Horizontal", 11))
sketch6.addConstraint(Sketcher.Constraint("Vertical", 3, 2, 4, 2))
sketch6.addConstraint(Sketcher.Constraint("Vertical", 2, 2, 5, 2))
sketch6.addConstraint(Sketcher.Constraint("Vertical", 7, 2, 8, 2))
sketch6.addConstraint(Sketcher.Constraint("Vertical", 6, 2, 9, 2))
sketch6.addConstraint(Sketcher.Constraint("Equal", 2, 8))
sketch6.addConstraint(Sketcher.Constraint("DistanceX", 1, 1, 1, 2, Q("1.483211 mm")))
sketch6.addConstraint(Sketcher.Constraint("DistanceY", 0, 2, 0, 1, Q("2.77296 mm")))
sketch6.addConstraint(Sketcher.Constraint("DistanceY", 4, 2, 4, 1, Q("2.966423 mm")))
sketch6.addConstraint(Sketcher.Constraint("DistanceY", 4, 2, -1, 1, Q("0.967312 mm")))
sketch6.addConstraint(Sketcher.Constraint("DistanceY", 6, 2, 1, 2, Q("1.225262 mm")))
sketch6.addConstraint(Sketcher.Constraint("DistanceY", 8, 2, 4, 2, Q("4.256172 mm")))
sketch6.addConstraint(Sketcher.Constraint("DistanceX", -1, 1, 0, 2, Q("42.883514 mm")))
pad6 = body2.newObject("PartDesign::Pad", "Pad005")
pad6.Profile = sketch6
pad6.setExpression("Length", "Params.pad6_length")

# Sketch on XY plane
sketch7 = body2.newObject("Sketcher::SketchObject", "Sketch006")
sketch7.AttachmentSupport = (doc.getObject("XY_Plane001"), [""])
sketch7.MapMode = "FlatFace"
sketch7.addGeometry(Part.LineSegment(App.Vector(4.8, 6.6, 0), App.Vector(4.8, 2.3, 0)), False)
sketch7.addGeometry(Part.LineSegment(App.Vector(4.8, 2.3, 0), App.Vector(2.1, 2.3, 0)), False)
sketch7.addGeometry(Part.LineSegment(App.Vector(2.1, 2.3, 0), App.Vector(2.1, 6.6, 0)), False)
sketch7.addGeometry(Part.LineSegment(App.Vector(2.1, 6.6, 0), App.Vector(4.8, 6.6, 0)), False)
sketch7.addGeometry(Part.LineSegment(App.Vector(4.8, -2.1, 0), App.Vector(4.8, -6.6, 0)), False)
sketch7.addGeometry(Part.LineSegment(App.Vector(4.8, -6.6, 0), App.Vector(2.1, -6.6, 0)), False)
sketch7.addGeometry(Part.LineSegment(App.Vector(2.1, -6.6, 0), App.Vector(2.1, -2.1, 0)), False)
sketch7.addGeometry(Part.LineSegment(App.Vector(2.1, -2.1, 0), App.Vector(4.8, -2.1, 0)), False)
sketch7.addGeometry(Part.LineSegment(App.Vector(18.8, 3.2, 0), App.Vector(18.8, -1.5, 0)), False)
sketch7.addGeometry(Part.LineSegment(App.Vector(18.8, -1.5, 0), App.Vector(15.6, -1.5, 0)), False)
sketch7.addGeometry(Part.LineSegment(App.Vector(15.6, -1.5, 0), App.Vector(15.6, 3.2, 0)), False)
sketch7.addGeometry(Part.LineSegment(App.Vector(15.6, 3.2, 0), App.Vector(18.8, 3.2, 0)), False)
sketch7.addGeometry(Part.LineSegment(App.Vector(46.8, 3.2, 0), App.Vector(46.8, -2.1, 0)), False)
sketch7.addGeometry(Part.LineSegment(App.Vector(46.8, -2.1, 0), App.Vector(41.3, -2.1, 0)), False)
sketch7.addGeometry(Part.LineSegment(App.Vector(41.3, -2.1, 0), App.Vector(41.3, 3.2, 0)), False)
sketch7.addGeometry(Part.LineSegment(App.Vector(41.3, 3.2, 0), App.Vector(46.8, 3.2, 0)), False)
sketch7.addConstraint(Sketcher.Constraint("Coincident", 0, 2, 1, 1))
sketch7.addConstraint(Sketcher.Constraint("Coincident", 1, 2, 2, 1))
sketch7.addConstraint(Sketcher.Constraint("Coincident", 2, 2, 3, 1))
sketch7.addConstraint(Sketcher.Constraint("Coincident", 3, 2, 0, 1))
sketch7.addConstraint(Sketcher.Constraint("Coincident", 4, 2, 5, 1))
sketch7.addConstraint(Sketcher.Constraint("Coincident", 5, 2, 6, 1))
sketch7.addConstraint(Sketcher.Constraint("Coincident", 6, 2, 7, 1))
sketch7.addConstraint(Sketcher.Constraint("Coincident", 7, 2, 4, 1))
sketch7.addConstraint(Sketcher.Constraint("Coincident", 8, 2, 9, 1))
sketch7.addConstraint(Sketcher.Constraint("Coincident", 9, 2, 10, 1))
sketch7.addConstraint(Sketcher.Constraint("Coincident", 10, 2, 11, 1))
sketch7.addConstraint(Sketcher.Constraint("Coincident", 11, 2, 8, 1))
sketch7.addConstraint(Sketcher.Constraint("Coincident", 12, 2, 13, 1))
sketch7.addConstraint(Sketcher.Constraint("Coincident", 13, 2, 14, 1))
sketch7.addConstraint(Sketcher.Constraint("Coincident", 14, 2, 15, 1))
sketch7.addConstraint(Sketcher.Constraint("Coincident", 15, 2, 12, 1))
sketch7.addConstraint(Sketcher.Constraint("Vertical", 0))
sketch7.addConstraint(Sketcher.Constraint("Horizontal", 1))
sketch7.addConstraint(Sketcher.Constraint("Vertical", 2))
sketch7.addConstraint(Sketcher.Constraint("Horizontal", 3))
sketch7.addConstraint(Sketcher.Constraint("Vertical", 4))
sketch7.addConstraint(Sketcher.Constraint("Horizontal", 5))
sketch7.addConstraint(Sketcher.Constraint("Vertical", 6))
sketch7.addConstraint(Sketcher.Constraint("Horizontal", 7))
sketch7.addConstraint(Sketcher.Constraint("Vertical", 8))
sketch7.addConstraint(Sketcher.Constraint("Horizontal", 9))
sketch7.addConstraint(Sketcher.Constraint("Vertical", 10))
sketch7.addConstraint(Sketcher.Constraint("Horizontal", 11))
sketch7.addConstraint(Sketcher.Constraint("Vertical", 12))
sketch7.addConstraint(Sketcher.Constraint("Horizontal", 13))
sketch7.addConstraint(Sketcher.Constraint("Vertical", 14))
sketch7.addConstraint(Sketcher.Constraint("Horizontal", 15))
sketch7.addConstraint(Sketcher.Constraint("Horizontal", 7, 2, 12, 2))
sketch7.addConstraint(Sketcher.Constraint("Horizontal", 11, 2, 14, 2))
sketch7.addConstraint(Sketcher.Constraint("Vertical", 3, 2, 4, 2))
sketch7.addConstraint(Sketcher.Constraint("Vertical", 2, 2, 5, 2))
sketch7.addConstraint(Sketcher.Constraint("DistanceY", 0, 2, 0, 1, Q("4.320659 mm")))
sketch7.addConstraint(Sketcher.Constraint("DistanceY", 4, 2, 4, 1, Q("4.514121 mm")))
sketch7.addConstraint(Sketcher.Constraint("DistanceY", 6, 2, -1, 1, Q("2.063598 mm")))
sketch7.addConstraint(Sketcher.Constraint("DistanceY", 8, 2, -1, 1, Q("1.547699 mm")))
sketch7.addConstraint(Sketcher.Constraint("DistanceX", 1, 2, 1, 1, Q("2.643985 mm")))
sketch7.addConstraint(Sketcher.Constraint("DistanceX", 9, 2, 9, 1, Q("3.224372 mm")))
sketch7.addConstraint(Sketcher.Constraint("DistanceX", 13, 2, 13, 1, Q("5.416946 mm")))
sketch7.addConstraint(Sketcher.Constraint("DistanceY", 8, 2, 8, 1, Q("4.707584 mm")))
sketch7.addConstraint(Sketcher.Constraint("DistanceX", -1, 1, 0, 2, Q("4.771432 mm")))
sketch7.addConstraint(Sketcher.Constraint("DistanceY", -1, 1, 0, 2, Q("2.321548 mm")))
sketch7.addConstraint(Sketcher.Constraint("DistanceX", -1, 1, 12, 2, Q("46.752761 mm")))
sketch7.addConstraint(Sketcher.Constraint("DistanceX", 6, 2, 8, 2, Q("16.702249 mm")))
pad7 = body2.newObject("PartDesign::Pad", "Pad006")
pad7.Profile = sketch7
pad7.setExpression("Length", "Params.pad7_length")
pad7.Reversed = True

# Sketch on YZ plane
sketch8 = body2.newObject("Sketcher::SketchObject", "Sketch007")
sketch8.AttachmentSupport = (doc.getObject("YZ_Plane001"), [""])
sketch8.MapMode = "FlatFace"
sketch8.addGeometry(Part.LineSegment(App.Vector(5.8, 2.3, 0), App.Vector(-5.8, 2.3, 0)), False)
sketch8.addGeometry(Part.LineSegment(App.Vector(-5.8, 2.3, 0), App.Vector(-5.8, 6.8, 0)), False)
sketch8.addGeometry(Part.LineSegment(App.Vector(-5.8, 6.8, 0), App.Vector(5.8, 6.8, 0)), False)
sketch8.addGeometry(Part.LineSegment(App.Vector(5.8, 6.8, 0), App.Vector(5.8, 2.3, 0)), False)
sketch8.addConstraint(Sketcher.Constraint("Coincident", 0, 2, 1, 1))
sketch8.addConstraint(Sketcher.Constraint("Coincident", 1, 2, 2, 1))
sketch8.addConstraint(Sketcher.Constraint("Coincident", 2, 2, 3, 1))
sketch8.addConstraint(Sketcher.Constraint("Coincident", 3, 2, 0, 1))
sketch8.addConstraint(Sketcher.Constraint("Horizontal", 0))
sketch8.addConstraint(Sketcher.Constraint("Vertical", 1))
sketch8.addConstraint(Sketcher.Constraint("Horizontal", 2))
sketch8.addConstraint(Sketcher.Constraint("Vertical", 3))
sketch8.addConstraint(Sketcher.Constraint("DistanceX", 0, 2, 0, 1, Q("11.59833 mm")))
sketch8.addConstraint(Sketcher.Constraint("DistanceY", 1, 1, 1, 2, Q("4.495211 mm")))
sketch8.addConstraint(Sketcher.Constraint("DistanceX", 0, 2, -1, 1, Q("5.833479 mm")))
sketch8.addConstraint(Sketcher.Constraint("DistanceY", -1, 1, 0, 2, Q("2.345525 mm")))
pocket1 = body2.newObject("PartDesign::Pocket", "Pocket")
pocket1.Profile = sketch8
pocket1.setExpression("Length", "Params.pocket1_length")
pocket1.Reversed = True
doc.recompute()

boolean3 = body4.newObject("PartDesign::Boolean", "Boolean002")
boolean3.Type = "Cut"
boolean3.addObjects([body5])
mirroring.Visibility = False

doc.recompute()
